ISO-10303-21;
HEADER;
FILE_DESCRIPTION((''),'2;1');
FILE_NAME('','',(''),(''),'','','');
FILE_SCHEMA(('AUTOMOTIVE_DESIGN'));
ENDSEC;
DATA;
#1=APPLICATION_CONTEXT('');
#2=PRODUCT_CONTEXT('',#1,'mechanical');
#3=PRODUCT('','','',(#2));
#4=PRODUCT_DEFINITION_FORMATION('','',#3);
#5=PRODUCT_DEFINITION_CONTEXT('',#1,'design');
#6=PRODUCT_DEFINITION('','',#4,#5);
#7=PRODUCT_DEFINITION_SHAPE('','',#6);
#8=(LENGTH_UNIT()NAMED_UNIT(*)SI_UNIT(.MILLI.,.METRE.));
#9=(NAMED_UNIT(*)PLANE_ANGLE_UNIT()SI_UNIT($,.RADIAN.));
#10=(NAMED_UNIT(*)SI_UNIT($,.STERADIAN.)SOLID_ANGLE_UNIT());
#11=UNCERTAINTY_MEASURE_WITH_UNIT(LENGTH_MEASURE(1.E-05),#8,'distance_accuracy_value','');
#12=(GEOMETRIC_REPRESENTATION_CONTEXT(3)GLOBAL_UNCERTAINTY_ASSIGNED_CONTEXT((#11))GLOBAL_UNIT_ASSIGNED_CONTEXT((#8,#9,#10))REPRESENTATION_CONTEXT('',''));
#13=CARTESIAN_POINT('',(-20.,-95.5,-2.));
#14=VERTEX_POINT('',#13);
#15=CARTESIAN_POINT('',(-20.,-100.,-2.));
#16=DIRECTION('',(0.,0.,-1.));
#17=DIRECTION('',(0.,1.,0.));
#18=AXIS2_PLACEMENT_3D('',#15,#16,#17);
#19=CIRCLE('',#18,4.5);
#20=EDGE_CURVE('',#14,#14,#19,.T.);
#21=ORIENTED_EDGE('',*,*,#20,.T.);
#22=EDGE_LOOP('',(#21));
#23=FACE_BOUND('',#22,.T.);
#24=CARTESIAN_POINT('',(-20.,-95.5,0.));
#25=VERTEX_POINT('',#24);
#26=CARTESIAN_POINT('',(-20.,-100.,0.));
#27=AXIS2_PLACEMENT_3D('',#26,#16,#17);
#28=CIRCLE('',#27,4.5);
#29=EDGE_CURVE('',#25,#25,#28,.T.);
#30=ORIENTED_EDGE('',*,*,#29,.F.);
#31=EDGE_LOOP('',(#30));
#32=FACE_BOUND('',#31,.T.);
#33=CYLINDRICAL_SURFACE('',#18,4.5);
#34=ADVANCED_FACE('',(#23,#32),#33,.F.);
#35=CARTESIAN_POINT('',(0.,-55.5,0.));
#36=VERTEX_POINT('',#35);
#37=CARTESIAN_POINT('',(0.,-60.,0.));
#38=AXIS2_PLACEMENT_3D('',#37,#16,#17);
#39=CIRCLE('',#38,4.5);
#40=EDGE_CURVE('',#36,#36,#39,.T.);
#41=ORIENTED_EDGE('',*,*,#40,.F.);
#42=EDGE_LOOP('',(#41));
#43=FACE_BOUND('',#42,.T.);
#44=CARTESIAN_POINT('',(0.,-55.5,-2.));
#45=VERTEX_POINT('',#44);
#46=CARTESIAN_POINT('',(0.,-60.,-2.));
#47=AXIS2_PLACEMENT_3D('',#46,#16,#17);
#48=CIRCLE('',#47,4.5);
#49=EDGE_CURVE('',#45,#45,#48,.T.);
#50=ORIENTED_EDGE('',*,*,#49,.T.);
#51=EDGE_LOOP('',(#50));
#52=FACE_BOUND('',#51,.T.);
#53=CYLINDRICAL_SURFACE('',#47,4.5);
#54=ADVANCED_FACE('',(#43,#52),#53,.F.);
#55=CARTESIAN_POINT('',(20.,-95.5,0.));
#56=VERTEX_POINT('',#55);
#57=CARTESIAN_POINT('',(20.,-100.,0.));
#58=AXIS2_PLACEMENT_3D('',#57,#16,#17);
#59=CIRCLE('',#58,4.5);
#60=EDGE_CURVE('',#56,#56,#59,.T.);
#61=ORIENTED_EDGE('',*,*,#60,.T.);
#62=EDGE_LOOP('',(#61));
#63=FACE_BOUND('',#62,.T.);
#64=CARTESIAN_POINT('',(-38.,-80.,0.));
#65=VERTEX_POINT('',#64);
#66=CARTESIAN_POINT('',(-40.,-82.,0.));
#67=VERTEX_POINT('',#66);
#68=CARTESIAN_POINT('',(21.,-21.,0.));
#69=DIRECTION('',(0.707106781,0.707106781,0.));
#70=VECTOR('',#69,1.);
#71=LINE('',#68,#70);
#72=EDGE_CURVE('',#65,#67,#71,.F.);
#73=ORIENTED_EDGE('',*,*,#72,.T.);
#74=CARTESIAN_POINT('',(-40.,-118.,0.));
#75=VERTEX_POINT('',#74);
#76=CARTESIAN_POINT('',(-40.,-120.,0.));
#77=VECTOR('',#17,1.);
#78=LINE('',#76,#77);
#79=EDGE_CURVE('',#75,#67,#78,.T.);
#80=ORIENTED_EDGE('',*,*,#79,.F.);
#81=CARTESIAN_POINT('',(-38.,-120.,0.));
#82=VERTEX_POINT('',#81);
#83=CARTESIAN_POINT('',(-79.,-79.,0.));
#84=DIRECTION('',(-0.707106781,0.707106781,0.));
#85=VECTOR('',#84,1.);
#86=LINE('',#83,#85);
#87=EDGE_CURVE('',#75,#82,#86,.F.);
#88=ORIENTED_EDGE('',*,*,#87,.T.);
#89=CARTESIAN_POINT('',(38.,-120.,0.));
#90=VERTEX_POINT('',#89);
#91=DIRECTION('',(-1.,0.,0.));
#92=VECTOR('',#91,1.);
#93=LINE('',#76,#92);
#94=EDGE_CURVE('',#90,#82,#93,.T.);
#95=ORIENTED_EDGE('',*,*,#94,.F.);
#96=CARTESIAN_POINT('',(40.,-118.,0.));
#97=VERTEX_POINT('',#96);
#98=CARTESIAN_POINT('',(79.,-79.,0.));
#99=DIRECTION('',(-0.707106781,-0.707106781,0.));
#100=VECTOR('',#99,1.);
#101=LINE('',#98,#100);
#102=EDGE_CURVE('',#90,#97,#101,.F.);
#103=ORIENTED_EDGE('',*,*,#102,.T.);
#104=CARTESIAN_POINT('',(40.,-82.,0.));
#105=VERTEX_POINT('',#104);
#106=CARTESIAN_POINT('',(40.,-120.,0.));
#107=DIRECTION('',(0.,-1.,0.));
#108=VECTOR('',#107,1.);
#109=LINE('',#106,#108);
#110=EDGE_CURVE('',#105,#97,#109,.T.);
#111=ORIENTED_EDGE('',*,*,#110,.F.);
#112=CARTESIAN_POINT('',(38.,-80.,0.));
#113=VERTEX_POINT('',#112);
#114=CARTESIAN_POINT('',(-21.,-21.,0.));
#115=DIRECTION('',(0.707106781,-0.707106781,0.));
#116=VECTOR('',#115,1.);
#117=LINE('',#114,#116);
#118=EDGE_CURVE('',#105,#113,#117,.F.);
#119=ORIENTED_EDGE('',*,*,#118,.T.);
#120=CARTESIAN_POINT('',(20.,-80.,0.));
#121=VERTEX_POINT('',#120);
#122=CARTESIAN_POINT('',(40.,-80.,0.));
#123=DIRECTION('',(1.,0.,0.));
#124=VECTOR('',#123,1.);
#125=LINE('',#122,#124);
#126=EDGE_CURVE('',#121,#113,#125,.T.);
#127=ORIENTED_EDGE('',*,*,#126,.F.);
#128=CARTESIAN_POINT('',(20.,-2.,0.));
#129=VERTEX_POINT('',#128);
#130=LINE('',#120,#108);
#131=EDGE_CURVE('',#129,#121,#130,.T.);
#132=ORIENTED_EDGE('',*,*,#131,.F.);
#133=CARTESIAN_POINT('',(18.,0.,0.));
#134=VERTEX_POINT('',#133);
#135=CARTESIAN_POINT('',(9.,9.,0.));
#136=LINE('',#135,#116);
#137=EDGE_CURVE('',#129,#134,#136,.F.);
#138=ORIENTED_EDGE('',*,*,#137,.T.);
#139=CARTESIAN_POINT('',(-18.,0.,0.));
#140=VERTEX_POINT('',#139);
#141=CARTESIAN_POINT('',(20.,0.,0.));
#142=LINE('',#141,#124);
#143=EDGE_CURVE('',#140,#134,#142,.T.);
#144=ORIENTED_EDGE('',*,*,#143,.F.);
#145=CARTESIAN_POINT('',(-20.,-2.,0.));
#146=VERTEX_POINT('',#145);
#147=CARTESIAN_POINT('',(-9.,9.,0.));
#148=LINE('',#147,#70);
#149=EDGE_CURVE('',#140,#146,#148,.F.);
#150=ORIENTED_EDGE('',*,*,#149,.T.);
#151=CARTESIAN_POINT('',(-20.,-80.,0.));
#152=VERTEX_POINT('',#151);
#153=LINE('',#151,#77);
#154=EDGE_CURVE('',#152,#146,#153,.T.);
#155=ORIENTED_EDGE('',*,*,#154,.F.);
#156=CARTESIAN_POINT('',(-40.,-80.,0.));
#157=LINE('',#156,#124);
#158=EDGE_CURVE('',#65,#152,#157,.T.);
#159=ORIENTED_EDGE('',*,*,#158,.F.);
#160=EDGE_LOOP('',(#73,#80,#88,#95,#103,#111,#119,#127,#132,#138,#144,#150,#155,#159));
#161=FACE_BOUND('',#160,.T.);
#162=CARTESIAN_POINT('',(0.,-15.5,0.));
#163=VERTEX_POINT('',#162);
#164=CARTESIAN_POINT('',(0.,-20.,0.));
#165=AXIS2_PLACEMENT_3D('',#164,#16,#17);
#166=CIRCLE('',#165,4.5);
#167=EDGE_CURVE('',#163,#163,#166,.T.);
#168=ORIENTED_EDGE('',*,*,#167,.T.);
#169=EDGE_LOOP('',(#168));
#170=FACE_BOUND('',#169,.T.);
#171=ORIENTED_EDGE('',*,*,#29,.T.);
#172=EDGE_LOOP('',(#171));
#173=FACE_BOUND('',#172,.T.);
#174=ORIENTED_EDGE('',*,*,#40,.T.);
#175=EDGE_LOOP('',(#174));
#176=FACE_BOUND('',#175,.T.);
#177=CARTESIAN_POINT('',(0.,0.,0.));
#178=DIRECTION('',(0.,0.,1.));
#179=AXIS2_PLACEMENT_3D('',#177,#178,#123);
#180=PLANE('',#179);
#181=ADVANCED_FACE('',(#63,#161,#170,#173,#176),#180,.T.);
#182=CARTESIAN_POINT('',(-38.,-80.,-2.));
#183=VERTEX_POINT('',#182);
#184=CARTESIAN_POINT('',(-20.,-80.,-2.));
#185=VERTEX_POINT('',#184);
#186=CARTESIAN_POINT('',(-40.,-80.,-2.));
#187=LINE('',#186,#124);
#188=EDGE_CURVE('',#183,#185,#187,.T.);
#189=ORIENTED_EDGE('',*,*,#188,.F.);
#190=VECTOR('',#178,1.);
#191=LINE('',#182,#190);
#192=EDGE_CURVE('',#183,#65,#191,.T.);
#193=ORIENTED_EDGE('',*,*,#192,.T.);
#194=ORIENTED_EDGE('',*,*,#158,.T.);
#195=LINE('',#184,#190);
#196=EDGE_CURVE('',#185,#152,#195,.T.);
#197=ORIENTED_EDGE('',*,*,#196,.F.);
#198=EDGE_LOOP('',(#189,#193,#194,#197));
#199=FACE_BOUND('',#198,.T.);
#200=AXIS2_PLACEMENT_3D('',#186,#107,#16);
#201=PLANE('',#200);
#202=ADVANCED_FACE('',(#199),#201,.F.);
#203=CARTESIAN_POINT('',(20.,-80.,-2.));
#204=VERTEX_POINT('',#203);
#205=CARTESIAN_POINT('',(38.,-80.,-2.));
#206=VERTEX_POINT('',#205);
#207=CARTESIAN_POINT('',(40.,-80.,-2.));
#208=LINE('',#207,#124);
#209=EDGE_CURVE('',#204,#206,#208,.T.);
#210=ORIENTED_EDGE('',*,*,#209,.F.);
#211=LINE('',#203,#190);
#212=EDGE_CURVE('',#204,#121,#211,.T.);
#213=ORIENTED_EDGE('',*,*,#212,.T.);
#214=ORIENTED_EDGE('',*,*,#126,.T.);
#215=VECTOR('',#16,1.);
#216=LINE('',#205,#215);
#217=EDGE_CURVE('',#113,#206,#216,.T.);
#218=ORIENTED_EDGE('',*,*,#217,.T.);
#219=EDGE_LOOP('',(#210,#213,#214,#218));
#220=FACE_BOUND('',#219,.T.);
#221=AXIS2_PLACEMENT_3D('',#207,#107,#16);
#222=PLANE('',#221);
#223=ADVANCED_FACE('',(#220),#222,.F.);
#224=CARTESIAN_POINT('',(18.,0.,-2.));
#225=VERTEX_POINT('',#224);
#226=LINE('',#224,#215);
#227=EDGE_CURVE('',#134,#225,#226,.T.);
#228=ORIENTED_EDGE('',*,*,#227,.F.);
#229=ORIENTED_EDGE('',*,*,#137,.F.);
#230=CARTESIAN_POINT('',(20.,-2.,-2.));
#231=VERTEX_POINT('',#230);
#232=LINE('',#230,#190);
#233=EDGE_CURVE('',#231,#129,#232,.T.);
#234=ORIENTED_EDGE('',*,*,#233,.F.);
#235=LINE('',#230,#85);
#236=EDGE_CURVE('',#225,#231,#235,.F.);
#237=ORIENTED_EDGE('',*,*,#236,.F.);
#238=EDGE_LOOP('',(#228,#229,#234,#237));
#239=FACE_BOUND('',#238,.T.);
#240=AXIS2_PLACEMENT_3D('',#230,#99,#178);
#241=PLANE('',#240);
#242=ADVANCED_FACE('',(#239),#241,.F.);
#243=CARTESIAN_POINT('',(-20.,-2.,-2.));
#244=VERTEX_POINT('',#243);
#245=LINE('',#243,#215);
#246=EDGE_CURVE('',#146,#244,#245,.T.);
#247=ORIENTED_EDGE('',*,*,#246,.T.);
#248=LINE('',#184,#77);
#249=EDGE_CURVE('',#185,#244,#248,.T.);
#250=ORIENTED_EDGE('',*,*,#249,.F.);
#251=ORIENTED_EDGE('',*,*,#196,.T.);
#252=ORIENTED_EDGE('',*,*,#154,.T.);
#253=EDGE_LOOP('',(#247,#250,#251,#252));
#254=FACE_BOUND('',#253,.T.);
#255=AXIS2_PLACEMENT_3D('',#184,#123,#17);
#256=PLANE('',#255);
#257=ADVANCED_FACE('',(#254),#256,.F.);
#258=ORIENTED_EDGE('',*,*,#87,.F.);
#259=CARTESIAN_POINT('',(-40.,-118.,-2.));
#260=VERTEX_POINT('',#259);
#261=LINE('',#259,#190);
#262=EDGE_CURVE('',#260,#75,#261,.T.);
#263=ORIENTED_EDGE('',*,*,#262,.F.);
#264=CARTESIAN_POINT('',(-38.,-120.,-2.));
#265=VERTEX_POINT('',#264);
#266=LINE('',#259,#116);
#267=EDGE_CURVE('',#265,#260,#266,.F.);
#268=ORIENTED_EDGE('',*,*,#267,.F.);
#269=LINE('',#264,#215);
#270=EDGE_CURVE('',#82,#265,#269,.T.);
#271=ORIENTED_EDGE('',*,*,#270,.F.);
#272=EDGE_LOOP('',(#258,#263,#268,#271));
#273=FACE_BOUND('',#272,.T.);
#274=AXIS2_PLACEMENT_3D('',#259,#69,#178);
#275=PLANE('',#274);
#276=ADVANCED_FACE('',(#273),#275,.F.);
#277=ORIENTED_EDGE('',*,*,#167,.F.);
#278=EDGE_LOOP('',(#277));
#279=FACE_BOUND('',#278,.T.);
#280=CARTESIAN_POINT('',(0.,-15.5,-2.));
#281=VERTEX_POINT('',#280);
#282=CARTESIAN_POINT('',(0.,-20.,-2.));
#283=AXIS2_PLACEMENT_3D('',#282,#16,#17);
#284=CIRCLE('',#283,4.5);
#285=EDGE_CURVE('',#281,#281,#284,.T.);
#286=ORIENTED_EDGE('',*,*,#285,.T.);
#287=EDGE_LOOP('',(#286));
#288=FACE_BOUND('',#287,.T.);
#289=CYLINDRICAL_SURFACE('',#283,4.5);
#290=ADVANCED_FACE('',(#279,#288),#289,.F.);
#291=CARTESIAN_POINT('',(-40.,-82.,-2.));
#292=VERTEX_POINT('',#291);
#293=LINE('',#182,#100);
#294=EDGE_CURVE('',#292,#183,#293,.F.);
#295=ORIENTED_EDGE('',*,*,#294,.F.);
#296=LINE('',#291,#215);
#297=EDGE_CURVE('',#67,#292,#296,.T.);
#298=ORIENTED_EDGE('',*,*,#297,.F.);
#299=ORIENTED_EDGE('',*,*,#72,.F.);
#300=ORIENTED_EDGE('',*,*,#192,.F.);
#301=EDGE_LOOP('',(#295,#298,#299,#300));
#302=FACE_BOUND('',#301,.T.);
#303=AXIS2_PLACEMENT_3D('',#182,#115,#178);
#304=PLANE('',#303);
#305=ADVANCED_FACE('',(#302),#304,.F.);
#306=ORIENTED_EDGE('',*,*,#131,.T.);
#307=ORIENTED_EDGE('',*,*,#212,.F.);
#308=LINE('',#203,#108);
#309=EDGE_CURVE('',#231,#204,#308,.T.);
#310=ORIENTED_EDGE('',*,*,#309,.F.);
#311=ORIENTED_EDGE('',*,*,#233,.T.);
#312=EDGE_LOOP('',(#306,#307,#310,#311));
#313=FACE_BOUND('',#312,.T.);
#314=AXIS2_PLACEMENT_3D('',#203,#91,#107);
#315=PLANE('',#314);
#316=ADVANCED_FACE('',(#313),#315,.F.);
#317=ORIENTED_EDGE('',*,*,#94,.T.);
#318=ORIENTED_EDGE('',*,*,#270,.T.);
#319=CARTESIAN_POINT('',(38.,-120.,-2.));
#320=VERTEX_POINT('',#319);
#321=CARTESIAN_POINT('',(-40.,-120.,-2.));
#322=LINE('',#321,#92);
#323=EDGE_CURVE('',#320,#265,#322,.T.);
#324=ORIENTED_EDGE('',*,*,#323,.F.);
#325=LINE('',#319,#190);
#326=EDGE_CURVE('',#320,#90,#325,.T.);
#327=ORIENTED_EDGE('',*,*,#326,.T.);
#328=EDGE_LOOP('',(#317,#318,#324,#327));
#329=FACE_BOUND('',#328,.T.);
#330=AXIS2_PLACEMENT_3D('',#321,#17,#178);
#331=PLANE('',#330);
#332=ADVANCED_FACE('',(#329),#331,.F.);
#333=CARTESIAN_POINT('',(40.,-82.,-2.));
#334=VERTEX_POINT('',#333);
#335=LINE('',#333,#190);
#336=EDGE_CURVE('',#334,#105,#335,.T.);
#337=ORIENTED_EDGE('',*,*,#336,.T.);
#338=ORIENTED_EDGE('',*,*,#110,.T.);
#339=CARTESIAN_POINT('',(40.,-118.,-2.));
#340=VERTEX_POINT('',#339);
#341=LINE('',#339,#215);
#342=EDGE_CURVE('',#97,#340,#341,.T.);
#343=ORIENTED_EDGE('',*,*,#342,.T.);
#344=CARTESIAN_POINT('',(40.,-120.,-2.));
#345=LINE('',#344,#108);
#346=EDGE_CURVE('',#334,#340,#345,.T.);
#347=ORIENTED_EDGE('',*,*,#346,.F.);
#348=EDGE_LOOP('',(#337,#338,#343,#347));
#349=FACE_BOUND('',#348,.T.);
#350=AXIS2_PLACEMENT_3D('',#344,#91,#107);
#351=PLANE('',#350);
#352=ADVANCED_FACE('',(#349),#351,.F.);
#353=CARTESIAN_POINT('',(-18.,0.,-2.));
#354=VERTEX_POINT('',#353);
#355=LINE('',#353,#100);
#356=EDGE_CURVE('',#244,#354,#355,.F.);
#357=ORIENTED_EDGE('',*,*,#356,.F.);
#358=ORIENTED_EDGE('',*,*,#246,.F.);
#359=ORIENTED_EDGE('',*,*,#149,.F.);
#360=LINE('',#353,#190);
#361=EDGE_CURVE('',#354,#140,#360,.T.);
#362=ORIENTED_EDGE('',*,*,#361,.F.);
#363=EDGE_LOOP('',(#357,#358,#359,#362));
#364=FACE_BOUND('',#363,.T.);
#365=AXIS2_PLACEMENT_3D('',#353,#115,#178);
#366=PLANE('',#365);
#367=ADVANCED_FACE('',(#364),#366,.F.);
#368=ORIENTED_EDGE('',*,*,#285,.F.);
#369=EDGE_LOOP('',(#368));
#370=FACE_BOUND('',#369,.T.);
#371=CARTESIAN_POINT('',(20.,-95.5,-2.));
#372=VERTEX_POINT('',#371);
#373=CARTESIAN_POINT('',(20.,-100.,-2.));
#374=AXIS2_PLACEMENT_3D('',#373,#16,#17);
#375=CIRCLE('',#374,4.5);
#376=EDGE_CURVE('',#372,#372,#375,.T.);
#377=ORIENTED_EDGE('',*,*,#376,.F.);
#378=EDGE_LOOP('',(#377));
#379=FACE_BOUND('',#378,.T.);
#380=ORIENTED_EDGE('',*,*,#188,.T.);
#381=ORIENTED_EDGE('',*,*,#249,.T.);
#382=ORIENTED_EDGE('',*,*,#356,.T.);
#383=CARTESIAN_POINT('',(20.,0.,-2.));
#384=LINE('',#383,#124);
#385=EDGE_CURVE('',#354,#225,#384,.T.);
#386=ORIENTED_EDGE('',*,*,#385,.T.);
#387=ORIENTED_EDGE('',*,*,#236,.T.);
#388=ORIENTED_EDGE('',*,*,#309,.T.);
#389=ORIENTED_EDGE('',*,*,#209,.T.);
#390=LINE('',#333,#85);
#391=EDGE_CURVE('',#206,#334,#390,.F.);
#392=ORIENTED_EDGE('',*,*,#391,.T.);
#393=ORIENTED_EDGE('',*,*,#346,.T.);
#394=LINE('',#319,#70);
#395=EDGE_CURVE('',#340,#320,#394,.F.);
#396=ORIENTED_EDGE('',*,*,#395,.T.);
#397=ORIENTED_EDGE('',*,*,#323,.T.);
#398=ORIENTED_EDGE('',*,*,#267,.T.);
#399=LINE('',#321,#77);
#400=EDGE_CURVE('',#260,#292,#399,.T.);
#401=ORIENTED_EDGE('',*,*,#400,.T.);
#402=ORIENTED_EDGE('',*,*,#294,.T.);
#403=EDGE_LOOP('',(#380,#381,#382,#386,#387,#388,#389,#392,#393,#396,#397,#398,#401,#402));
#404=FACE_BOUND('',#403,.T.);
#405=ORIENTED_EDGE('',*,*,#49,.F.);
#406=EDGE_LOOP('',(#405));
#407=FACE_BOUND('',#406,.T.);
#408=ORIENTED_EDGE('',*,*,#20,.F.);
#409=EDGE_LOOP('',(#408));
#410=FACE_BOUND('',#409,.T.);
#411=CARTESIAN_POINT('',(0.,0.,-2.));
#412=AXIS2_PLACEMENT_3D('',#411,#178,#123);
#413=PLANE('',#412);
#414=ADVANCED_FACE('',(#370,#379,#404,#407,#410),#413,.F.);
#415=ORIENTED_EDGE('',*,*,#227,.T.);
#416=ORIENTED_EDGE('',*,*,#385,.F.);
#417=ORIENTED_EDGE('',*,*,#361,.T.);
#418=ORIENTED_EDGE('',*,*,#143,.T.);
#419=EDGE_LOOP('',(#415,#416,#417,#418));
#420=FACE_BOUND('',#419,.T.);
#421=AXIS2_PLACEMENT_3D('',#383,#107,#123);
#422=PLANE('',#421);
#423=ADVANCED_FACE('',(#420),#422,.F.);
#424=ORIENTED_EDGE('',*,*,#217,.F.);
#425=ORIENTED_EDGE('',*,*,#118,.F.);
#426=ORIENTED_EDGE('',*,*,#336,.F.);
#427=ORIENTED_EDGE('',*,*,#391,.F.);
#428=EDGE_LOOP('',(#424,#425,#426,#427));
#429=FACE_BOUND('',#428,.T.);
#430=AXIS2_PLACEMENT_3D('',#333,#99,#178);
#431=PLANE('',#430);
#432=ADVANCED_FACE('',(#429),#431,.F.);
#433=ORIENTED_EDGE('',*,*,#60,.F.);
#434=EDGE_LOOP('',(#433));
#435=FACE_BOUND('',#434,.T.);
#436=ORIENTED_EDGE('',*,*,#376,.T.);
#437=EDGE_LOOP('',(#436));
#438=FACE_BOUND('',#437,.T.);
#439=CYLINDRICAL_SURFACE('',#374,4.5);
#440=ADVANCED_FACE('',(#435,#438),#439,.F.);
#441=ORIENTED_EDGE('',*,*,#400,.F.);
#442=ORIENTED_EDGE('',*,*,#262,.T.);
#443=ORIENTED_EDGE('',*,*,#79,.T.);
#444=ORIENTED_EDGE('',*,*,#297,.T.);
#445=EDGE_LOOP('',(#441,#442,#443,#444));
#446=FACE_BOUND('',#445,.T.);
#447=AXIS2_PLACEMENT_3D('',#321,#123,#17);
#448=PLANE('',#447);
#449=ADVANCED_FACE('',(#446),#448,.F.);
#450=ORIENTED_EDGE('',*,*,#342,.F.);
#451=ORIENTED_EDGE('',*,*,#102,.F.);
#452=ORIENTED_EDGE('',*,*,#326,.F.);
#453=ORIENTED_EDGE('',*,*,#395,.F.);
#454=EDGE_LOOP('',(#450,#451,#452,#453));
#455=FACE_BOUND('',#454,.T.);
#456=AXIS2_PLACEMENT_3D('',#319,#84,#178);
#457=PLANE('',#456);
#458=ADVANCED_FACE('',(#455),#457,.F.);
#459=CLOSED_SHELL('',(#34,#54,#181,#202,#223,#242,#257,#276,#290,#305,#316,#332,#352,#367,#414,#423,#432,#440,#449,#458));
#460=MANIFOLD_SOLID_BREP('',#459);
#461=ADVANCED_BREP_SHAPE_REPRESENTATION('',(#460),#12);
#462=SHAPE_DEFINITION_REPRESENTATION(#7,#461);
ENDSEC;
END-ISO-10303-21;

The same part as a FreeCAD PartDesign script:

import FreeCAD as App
import Part
import Sketcher
from FreeCAD import Vector
Q = App.Units.Quantity


def edges_at(feature, points):
    """Names of the edges that pass closest to the given points."""
    edges = feature.Shape.Edges
    near = lambda p: min(range(len(edges)), key=lambda i: edges[i].distToShape(Part.Vertex(*p))[0])
    return sorted({f"Edge{near(p) + 1}" for p in points})

doc = App.newDocument("Part")
body = doc.addObject("PartDesign::Body", "Body")

sketch1 = body.newObject("Sketcher::SketchObject", "Sketch")
sketch1.AttachmentSupport = (doc.getObject("XY_Plane"), [""])
sketch1.MapMode = "FlatFace"
sketch1.addGeometry(Part.LineSegment(Vector(40, -120, 0), Vector(-40, -120, 0)), False)
sketch1.addGeometry(Part.LineSegment(Vector(-40, -120, 0), Vector(-40, -80, 0)), False)
sketch1.addGeometry(Part.LineSegment(Vector(-40, -80, 0), Vector(-20, -80, 0)), False)
sketch1.addGeometry(Part.LineSegment(Vector(-20, -80, 0), Vector(-20, 0, 0)), False)
sketch1.addGeometry(Part.LineSegment(Vector(-20, 0, 0), Vector(20, 0, 0)), False)
sketch1.addGeometry(Part.LineSegment(Vector(20, 0, 0), Vector(20, -80, 0)), False)
sketch1.addGeometry(Part.LineSegment(Vector(20, -80, 0), Vector(40, -80, 0)), False)
sketch1.addGeometry(Part.LineSegment(Vector(40, -80, 0), Vector(40, -120, 0)), False)
sketch1.addConstraint(Sketcher.Constraint("Coincident", 0, 2, 1, 1))
sketch1.addConstraint(Sketcher.Constraint("Coincident", 1, 2, 2, 1))
sketch1.addConstraint(Sketcher.Constraint("Coincident", 2, 2, 3, 1))
sketch1.addConstraint(Sketcher.Constraint("Coincident", 3, 2, 4, 1))
sketch1.addConstraint(Sketcher.Constraint("Coincident", 4, 2, 5, 1))
sketch1.addConstraint(Sketcher.Constraint("Coincident", 5, 2, 6, 1))
sketch1.addConstraint(Sketcher.Constraint("Coincident", 6, 2, 7, 1))
sketch1.addConstraint(Sketcher.Constraint("Coincident", 7, 2, 0, 1))
sketch1.addConstraint(Sketcher.Constraint("Horizontal", 0))
sketch1.addConstraint(Sketcher.Constraint("Vertical", 1))
sketch1.addConstraint(Sketcher.Constraint("Horizontal", 2))
sketch1.addConstraint(Sketcher.Constraint("Vertical", 3))
sketch1.addConstraint(Sketcher.Constraint("Horizontal", 4))
sketch1.addConstraint(Sketcher.Constraint("Vertical", 5))
sketch1.addConstraint(Sketcher.Constraint("Horizontal", 6))
sketch1.addConstraint(Sketcher.Constraint("Vertical", 7))
sketch1.addConstraint(Sketcher.Constraint("Symmetric", 3, 2, 4, 2, -1, 1))
sketch1.addConstraint(Sketcher.Constraint("Symmetric", 1, 2, 6, 2, -2))
sketch1.addConstraint(Sketcher.Constraint("Equal", 4, 1))
sketch1.addConstraint(Sketcher.Constraint("Equal", 0, 3))
sketch1.addConstraint(Sketcher.Constraint("DistanceX", 0, 2, 0, 1, Q("80 mm")))
sketch1.addConstraint(Sketcher.Constraint("DistanceX", 2, 1, 2, 2, Q("20 mm")))
pad1 = body.newObject("PartDesign::Pad", "Pad")
pad1.Profile = sketch1
pad1.Length = 2
pad1.Reversed = True

sketch2 = body.newObject("Sketcher::SketchObject", "Sketch001")
sketch2.AttachmentSupport = (doc.getObject("XY_Plane"), [""])
sketch2.MapMode = "FlatFace"
sketch2.AttachmentOffset = App.Placement(Vector(0, 0, -2), App.Rotation())
sketch2.addGeometry(Part.Circle(Vector(20, -100, 0), Vector(0, 0, 1), 4.5), False)
sketch2.addGeometry(Part.Circle(Vector(0, -60, 0), Vector(0, 0, 1), 4.5), False)
sketch2.addGeometry(Part.Circle(Vector(0, -20, 0), Vector(0, 0, 1), 4.5), False)
sketch2.addGeometry(Part.Circle(Vector(-20, -100, 0), Vector(0, 0, 1), 4.5), False)
sketch2.addConstraint(Sketcher.Constraint("Equal", 0, 1))
sketch2.addConstraint(Sketcher.Constraint("Equal", 1, 2))
sketch2.addConstraint(Sketcher.Constraint("Equal", 2, 3))
sketch2.addConstraint(Sketcher.Constraint("Symmetric", 0, 3, 3, 3, -2))
sketch2.addConstraint(Sketcher.Constraint("PointOnObject", 1, 3, -2))
sketch2.addConstraint(Sketcher.Constraint("PointOnObject", 2, 3, -2))
sketch2.addConstraint(Sketcher.Constraint("Diameter", 0, Q("9 mm")))
sketch2.addConstraint(Sketcher.Constraint("DistanceX", -1, 1, 0, 3, Q("20 mm")))
sketch2.addConstraint(Sketcher.Constraint("DistanceY", 0, 3, -1, 1, Q("100 mm")))
sketch2.addConstraint(Sketcher.Constraint("DistanceY", 1, 3, -1, 1, Q("60 mm")))
sketch2.addConstraint(Sketcher.Constraint("DistanceY", 2, 3, -1, 1, Q("20 mm")))
doc.recompute()
hole = body.newObject("PartDesign::Hole", "Hole")
hole.Profile = sketch2
hole.ThreadType = "None"
hole.Diameter = 9
hole.DepthType = "ThroughAll"
hole.Reversed = True
doc.recompute()

chamfer = body.newObject("PartDesign::Chamfer", "Chamfer")
chamfer.Base = (hole, edges_at(hole, [
    (-40, -80, -1),
    (-40, -120, -1),
    (40, -120, -1),
    (40, -80, -1),
    (20, 0, -1),
    (-20, 0, -1),
]))
chamfer.Size = 2

doc.recompute()
